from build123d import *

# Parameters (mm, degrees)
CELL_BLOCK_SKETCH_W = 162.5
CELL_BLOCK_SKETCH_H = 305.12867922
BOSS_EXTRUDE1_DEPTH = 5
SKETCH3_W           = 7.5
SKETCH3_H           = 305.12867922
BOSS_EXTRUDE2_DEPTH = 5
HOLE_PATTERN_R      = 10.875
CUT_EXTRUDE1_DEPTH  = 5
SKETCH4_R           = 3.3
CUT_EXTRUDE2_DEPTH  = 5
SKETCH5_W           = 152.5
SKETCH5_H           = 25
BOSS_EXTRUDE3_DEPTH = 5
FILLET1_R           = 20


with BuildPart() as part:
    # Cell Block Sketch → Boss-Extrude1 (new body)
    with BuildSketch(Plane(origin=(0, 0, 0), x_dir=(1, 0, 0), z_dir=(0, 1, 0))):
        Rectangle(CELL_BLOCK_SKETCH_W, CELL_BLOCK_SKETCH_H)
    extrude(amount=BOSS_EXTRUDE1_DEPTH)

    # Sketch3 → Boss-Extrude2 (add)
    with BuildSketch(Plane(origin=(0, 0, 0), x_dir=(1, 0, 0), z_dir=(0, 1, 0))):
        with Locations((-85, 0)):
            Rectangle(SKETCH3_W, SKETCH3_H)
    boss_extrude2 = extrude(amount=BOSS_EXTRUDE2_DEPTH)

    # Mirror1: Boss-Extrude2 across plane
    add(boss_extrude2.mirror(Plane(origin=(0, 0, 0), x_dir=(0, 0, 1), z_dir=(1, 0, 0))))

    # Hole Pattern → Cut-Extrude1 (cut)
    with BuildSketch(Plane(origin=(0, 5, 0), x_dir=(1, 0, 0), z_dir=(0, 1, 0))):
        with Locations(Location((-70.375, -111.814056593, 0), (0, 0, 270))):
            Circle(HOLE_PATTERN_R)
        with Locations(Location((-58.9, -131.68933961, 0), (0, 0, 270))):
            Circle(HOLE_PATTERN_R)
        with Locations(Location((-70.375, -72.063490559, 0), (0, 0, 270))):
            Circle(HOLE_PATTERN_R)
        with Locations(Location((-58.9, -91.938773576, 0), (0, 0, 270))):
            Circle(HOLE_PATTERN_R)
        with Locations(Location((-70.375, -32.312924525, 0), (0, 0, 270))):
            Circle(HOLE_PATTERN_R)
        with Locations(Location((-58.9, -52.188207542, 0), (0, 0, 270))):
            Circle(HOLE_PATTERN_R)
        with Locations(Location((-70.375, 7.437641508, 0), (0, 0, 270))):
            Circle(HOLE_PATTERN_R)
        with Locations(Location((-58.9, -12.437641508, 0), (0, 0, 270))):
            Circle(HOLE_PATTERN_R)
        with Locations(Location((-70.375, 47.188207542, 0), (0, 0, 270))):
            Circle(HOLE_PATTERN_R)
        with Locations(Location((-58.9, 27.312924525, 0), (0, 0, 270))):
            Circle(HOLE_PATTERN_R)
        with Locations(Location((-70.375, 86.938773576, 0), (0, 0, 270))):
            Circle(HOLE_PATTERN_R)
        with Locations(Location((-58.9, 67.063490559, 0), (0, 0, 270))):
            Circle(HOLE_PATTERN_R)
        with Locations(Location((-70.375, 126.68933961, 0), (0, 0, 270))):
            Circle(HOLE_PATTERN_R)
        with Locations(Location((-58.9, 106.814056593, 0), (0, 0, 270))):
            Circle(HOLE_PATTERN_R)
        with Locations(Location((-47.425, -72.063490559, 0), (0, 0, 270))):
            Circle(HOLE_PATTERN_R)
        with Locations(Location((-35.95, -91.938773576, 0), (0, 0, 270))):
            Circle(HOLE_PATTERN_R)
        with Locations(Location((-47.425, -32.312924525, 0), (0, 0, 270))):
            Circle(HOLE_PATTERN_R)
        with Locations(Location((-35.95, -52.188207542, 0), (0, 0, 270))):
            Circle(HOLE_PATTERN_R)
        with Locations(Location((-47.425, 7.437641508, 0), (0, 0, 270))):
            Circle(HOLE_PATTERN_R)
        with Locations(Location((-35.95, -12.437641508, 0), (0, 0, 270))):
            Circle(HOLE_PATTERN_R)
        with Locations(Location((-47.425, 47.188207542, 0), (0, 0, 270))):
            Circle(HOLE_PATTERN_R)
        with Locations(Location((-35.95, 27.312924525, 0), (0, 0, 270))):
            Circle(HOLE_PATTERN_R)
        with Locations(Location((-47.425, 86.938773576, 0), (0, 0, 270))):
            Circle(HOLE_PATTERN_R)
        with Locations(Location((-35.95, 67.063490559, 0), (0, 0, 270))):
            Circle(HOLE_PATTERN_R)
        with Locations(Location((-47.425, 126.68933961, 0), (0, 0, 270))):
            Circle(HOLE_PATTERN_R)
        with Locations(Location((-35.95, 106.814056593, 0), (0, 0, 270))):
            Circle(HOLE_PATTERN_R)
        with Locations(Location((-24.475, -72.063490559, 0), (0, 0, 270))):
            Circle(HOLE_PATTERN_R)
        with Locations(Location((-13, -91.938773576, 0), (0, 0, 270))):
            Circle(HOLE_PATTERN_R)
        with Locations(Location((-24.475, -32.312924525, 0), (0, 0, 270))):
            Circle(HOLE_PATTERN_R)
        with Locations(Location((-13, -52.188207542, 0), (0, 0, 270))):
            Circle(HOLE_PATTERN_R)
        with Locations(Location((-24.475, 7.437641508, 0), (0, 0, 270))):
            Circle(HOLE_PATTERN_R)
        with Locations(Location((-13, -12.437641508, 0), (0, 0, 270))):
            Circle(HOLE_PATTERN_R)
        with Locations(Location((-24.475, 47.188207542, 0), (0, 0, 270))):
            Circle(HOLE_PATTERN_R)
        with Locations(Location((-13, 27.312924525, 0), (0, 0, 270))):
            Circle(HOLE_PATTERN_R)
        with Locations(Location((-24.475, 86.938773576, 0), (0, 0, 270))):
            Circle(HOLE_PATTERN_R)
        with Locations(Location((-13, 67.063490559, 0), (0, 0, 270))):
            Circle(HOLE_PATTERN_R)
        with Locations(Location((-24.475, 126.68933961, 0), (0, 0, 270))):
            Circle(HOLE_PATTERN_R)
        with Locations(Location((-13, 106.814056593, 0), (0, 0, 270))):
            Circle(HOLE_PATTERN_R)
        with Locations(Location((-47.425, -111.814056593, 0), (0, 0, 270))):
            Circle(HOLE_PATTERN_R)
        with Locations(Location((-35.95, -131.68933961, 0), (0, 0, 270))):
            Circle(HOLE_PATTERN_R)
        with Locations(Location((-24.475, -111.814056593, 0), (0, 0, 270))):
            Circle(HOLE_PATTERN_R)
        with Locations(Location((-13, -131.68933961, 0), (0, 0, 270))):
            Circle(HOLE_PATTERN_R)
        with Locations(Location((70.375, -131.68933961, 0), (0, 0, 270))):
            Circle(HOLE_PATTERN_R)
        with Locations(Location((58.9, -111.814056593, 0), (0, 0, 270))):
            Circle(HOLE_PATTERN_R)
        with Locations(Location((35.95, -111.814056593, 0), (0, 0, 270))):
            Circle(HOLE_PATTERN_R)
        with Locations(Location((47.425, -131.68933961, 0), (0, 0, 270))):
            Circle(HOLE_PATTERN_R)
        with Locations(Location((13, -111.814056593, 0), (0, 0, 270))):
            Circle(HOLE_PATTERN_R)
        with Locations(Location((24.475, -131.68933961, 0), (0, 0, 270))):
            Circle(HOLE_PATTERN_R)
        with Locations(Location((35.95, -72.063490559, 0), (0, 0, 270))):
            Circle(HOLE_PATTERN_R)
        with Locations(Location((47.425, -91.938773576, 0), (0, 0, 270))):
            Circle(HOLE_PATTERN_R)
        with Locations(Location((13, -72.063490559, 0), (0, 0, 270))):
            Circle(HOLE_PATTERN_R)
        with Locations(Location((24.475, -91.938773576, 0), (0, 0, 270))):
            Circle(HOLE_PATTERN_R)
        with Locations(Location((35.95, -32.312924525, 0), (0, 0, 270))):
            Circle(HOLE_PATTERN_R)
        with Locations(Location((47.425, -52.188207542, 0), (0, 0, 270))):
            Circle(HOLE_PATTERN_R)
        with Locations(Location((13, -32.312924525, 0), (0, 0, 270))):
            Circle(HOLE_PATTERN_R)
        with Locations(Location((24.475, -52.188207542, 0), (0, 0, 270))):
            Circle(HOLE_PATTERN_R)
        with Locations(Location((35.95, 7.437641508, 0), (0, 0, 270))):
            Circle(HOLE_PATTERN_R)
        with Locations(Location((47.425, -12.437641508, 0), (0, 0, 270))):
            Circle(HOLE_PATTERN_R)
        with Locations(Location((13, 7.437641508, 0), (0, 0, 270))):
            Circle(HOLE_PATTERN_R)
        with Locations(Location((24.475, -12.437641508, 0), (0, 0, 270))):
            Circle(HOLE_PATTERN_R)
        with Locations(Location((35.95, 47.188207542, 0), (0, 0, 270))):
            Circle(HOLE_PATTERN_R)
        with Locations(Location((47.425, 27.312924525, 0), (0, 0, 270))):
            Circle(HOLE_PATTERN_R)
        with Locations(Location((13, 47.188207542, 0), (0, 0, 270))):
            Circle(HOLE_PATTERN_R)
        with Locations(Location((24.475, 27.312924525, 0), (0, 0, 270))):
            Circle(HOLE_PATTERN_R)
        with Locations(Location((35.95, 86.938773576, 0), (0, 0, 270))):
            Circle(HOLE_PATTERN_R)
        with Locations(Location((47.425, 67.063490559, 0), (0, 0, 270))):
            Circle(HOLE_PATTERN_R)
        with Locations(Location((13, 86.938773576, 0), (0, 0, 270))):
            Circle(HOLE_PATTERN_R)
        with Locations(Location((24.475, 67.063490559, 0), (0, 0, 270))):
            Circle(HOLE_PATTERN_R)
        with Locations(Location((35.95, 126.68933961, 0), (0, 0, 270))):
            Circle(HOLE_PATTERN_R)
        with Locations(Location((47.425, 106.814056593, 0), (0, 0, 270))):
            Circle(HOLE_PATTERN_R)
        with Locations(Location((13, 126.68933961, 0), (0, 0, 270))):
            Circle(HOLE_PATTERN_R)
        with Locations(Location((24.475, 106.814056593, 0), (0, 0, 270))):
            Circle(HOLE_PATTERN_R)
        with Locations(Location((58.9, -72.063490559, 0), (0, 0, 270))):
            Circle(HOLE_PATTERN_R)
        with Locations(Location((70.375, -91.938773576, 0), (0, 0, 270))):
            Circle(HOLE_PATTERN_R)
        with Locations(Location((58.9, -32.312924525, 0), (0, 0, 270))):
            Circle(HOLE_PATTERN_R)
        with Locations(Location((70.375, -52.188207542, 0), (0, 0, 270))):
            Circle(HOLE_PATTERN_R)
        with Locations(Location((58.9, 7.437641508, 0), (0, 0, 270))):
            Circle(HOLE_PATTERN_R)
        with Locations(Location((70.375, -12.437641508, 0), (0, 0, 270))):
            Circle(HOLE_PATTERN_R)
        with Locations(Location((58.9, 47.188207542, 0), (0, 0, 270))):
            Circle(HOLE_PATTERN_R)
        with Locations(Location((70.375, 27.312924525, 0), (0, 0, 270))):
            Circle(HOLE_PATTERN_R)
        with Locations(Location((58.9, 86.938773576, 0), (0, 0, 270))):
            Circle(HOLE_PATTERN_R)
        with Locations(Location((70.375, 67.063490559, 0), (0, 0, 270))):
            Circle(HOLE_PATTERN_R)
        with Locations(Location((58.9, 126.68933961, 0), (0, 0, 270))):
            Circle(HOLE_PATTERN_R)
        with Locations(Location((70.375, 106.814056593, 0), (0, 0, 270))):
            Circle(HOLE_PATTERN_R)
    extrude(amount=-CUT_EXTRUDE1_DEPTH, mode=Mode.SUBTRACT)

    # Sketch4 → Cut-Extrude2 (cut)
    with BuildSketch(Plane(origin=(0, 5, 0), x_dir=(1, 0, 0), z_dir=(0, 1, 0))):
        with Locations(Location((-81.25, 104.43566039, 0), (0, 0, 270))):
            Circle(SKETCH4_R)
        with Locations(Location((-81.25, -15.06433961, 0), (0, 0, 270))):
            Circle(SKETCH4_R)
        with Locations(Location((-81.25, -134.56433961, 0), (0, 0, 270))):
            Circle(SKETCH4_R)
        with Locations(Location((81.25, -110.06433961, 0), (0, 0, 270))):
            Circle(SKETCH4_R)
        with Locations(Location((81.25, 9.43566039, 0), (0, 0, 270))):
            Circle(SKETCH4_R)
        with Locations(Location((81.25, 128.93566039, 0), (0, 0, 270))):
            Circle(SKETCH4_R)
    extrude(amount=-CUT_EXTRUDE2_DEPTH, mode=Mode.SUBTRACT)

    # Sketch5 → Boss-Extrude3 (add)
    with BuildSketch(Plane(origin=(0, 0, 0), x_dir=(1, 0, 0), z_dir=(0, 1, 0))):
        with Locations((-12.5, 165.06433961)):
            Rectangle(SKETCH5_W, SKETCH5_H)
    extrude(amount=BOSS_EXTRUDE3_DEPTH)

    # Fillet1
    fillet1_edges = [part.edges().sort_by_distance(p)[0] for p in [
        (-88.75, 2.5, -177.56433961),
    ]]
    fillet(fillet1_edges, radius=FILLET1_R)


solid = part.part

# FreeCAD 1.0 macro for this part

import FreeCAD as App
import Part
import Sketcher
from FreeCAD import Vector


def edges_at(feature, points):
    """Names of the edges that pass closest to the given points."""
    edges = feature.Shape.Edges
    near = lambda p: min(range(len(edges)), key=lambda i: edges[i].distToShape(Part.Vertex(*p))[0])
    return sorted({f"Edge{near(p) + 1}" for p in points})


def add_polygon(sketch, points):
    """Adds a closed chain of lines whose ends are joined by coincident constraints."""
    first, n = sketch.GeometryCount, len(points)
    for a, b in zip(points, points[1:] + points[:1]):
        sketch.addGeometry(Part.LineSegment(App.Vector(*a, 0), App.Vector(*b, 0)), False)
    for i in range(n):
        sketch.addConstraint(Sketcher.Constraint("Coincident", first + i, 2, first + (i + 1) % n, 1))

doc = App.newDocument("Part")
body = doc.addObject("PartDesign::Body", "Body")

sketch1 = doc.addObject("Sketcher::SketchObject", "Sketch")
body.addObject(sketch1)
sketch1.AttachmentSupport = (doc.XZ_Plane, [""])
sketch1.MapMode = "FlatFace"
add_polygon(sketch1, [(-81, -153), (-81, 153), (81, 153), (81, -153)])
sketch1.addConstraint(Sketcher.Constraint("Vertical", 0))
sketch1.addConstraint(Sketcher.Constraint("Horizontal", 1))
sketch1.addConstraint(Sketcher.Constraint("Vertical", 2))
sketch1.addConstraint(Sketcher.Constraint("Horizontal", 3))
sketch1.addConstraint(Sketcher.Constraint("Symmetric", 0, 2, 2, 2, -1, 1))
sketch1.addConstraint(Sketcher.Constraint("DistanceX", 1, 1, 1, 2, 162.5))
sketch1.addConstraint(Sketcher.Constraint("DistanceY", 0, 1, 0, 2, 305.128679))
pad1 = doc.addObject("PartDesign::Pad", "Pad")
body.addObject(pad1)
pad1.Profile = sketch1
pad1.Length = 5
pad1.Reversed = True

sketch2 = doc.addObject("Sketcher::SketchObject", "Sketch001")
body.addObject(sketch2)
sketch2.AttachmentSupport = (doc.XZ_Plane, [""])
sketch2.MapMode = "FlatFace"
add_polygon(sketch2, [(-89, -153), (-89, 153), (-81, 153), (-81, -153)])
sketch2.addConstraint(Sketcher.Constraint("Vertical", 0))
sketch2.addConstraint(Sketcher.Constraint("Horizontal", 1))
sketch2.addConstraint(Sketcher.Constraint("Vertical", 2))
sketch2.addConstraint(Sketcher.Constraint("Horizontal", 3))
sketch2.addConstraint(Sketcher.Constraint("DistanceX", 1, 1, 1, 2, 7.5))
sketch2.addConstraint(Sketcher.Constraint("DistanceX", 0, 2, -1, 1, 88.75))
sketch2.addConstraint(Sketcher.Constraint("DistanceY", 0, 1, 0, 2, 305.128679))
sketch2.addConstraint(Sketcher.Constraint("DistanceY", -1, 1, 0, 2, 152.56434))
pad2 = doc.addObject("PartDesign::Pad", "Pad001")
body.addObject(pad2)
pad2.Profile = sketch2
pad2.Length = 5
pad2.Reversed = True
doc.recompute()

mirrored = doc.addObject("PartDesign::Mirrored", "Mirrored")
body.addObject(mirrored)
mirrored.Originals = [pad2]
mirrored.MirrorPlane = (doc.YZ_Plane, [""])
body.Tip = mirrored

sketch3 = doc.addObject("Sketcher::SketchObject", "Sketch002")
body.addObject(sketch3)
sketch3.AttachmentSupport = (doc.XZ_Plane, [""])
sketch3.MapMode = "FlatFace"
sketch3.AttachmentOffset = App.Placement(Vector(0, 0, -5), App.Rotation())
sketch3.addGeometry(Part.Circle(Vector(-70, 112, 0), Vector(0, 0, 1), 11), False)
sketch3.addGeometry(Part.Circle(Vector(-59, 132, 0), Vector(0, 0, 1), 11), False)
sketch3.addGeometry(Part.Circle(Vector(-70, 72, 0), Vector(0, 0, 1), 11), False)
sketch3.addGeometry(Part.Circle(Vector(-59, 92, 0), Vector(0, 0, 1), 11), False)
sketch3.addGeometry(Part.Circle(Vector(-70, 32, 0), Vector(0, 0, 1), 11), False)
sketch3.addGeometry(Part.Circle(Vector(-59, 52, 0), Vector(0, 0, 1), 11), False)
sketch3.addGeometry(Part.Circle(Vector(-70, -7, 0), Vector(0, 0, 1), 11), False)
sketch3.addGeometry(Part.Circle(Vector(-59, 12, 0), Vector(0, 0, 1), 11), False)
sketch3.addGeometry(Part.Circle(Vector(-70, -47, 0), Vector(0, 0, 1), 11), False)
sketch3.addGeometry(Part.Circle(Vector(-59, -27, 0), Vector(0, 0, 1), 11), False)
sketch3.addGeometry(Part.Circle(Vector(-70, -87, 0), Vector(0, 0, 1), 11), False)
sketch3.addGeometry(Part.Circle(Vector(-59, -67, 0), Vector(0, 0, 1), 11), False)
sketch3.addGeometry(Part.Circle(Vector(-70, -127, 0), Vector(0, 0, 1), 11), False)
sketch3.addGeometry(Part.Circle(Vector(-59, -107, 0), Vector(0, 0, 1), 11), False)
sketch3.addGeometry(Part.Circle(Vector(-47, 72, 0), Vector(0, 0, 1), 11), False)
sketch3.addGeometry(Part.Circle(Vector(-36, 92, 0), Vector(0, 0, 1), 11), False)
sketch3.addGeometry(Part.Circle(Vector(-47, 32, 0), Vector(0, 0, 1), 11), False)
sketch3.addGeometry(Part.Circle(Vector(-36, 52, 0), Vector(0, 0, 1), 11), False)
sketch3.addGeometry(Part.Circle(Vector(-47, -7, 0), Vector(0, 0, 1), 11), False)
sketch3.addGeometry(Part.Circle(Vector(-36, 12, 0), Vector(0, 0, 1), 11), False)
sketch3.addGeometry(Part.Circle(Vector(-47, -47, 0), Vector(0, 0, 1), 11), False)
sketch3.addGeometry(Part.Circle(Vector(-36, -27, 0), Vector(0, 0, 1), 11), False)
sketch3.addGeometry(Part.Circle(Vector(-47, -87, 0), Vector(0, 0, 1), 11), False)
sketch3.addGeometry(Part.Circle(Vector(-36, -67, 0), Vector(0, 0, 1), 11), False)
sketch3.addGeometry(Part.Circle(Vector(-47, -127, 0), Vector(0, 0, 1), 11), False)
sketch3.addGeometry(Part.Circle(Vector(-36, -107, 0), Vector(0, 0, 1), 11), False)
sketch3.addGeometry(Part.Circle(Vector(-24, 72, 0), Vector(0, 0, 1), 11), False)
sketch3.addGeometry(Part.Circle(Vector(-13, 92, 0), Vector(0, 0, 1), 11), False)
sketch3.addGeometry(Part.Circle(Vector(-24, 32, 0), Vector(0, 0, 1), 11), False)
sketch3.addGeometry(Part.Circle(Vector(-13, 52, 0), Vector(0, 0, 1), 11), False)
sketch3.addGeometry(Part.Circle(Vector(-24, -7, 0), Vector(0, 0, 1), 11), False)
sketch3.addGeometry(Part.Circle(Vector(-13, 12, 0), Vector(0, 0, 1), 11), False)
sketch3.addGeometry(Part.Circle(Vector(-24, -47, 0), Vector(0, 0, 1), 11), False)
sketch3.addGeometry(Part.Circle(Vector(-13, -27, 0), Vector(0, 0, 1), 11), False)
sketch3.addGeometry(Part.Circle(Vector(-24, -87, 0), Vector(0, 0, 1), 11), False)
sketch3.addGeometry(Part.Circle(Vector(-13, -67, 0), Vector(0, 0, 1), 11), False)
sketch3.addGeometry(Part.Circle(Vector(-24, -127, 0), Vector(0, 0, 1), 11), False)
sketch3.addGeometry(Part.Circle(Vector(-13, -107, 0), Vector(0, 0, 1), 11), False)
sketch3.addGeometry(Part.Circle(Vector(-47, 112, 0), Vector(0, 0, 1), 11), False)
sketch3.addGeometry(Part.Circle(Vector(-36, 132, 0), Vector(0, 0, 1), 11), False)
sketch3.addGeometry(Part.Circle(Vector(-24, 112, 0), Vector(0, 0, 1), 11), False)
sketch3.addGeometry(Part.Circle(Vector(-13, 132, 0), Vector(0, 0, 1), 11), False)
sketch3.addGeometry(Part.Circle(Vector(70, 132, 0), Vector(0, 0, 1), 11), False)
sketch3.addGeometry(Part.Circle(Vector(59, 112, 0), Vector(0, 0, 1), 11), False)
sketch3.addGeometry(Part.Circle(Vector(36, 112, 0), Vector(0, 0, 1), 11), False)
sketch3.addGeometry(Part.Circle(Vector(47, 132, 0), Vector(0, 0, 1), 11), False)
sketch3.addGeometry(Part.Circle(Vector(13, 112, 0), Vector(0, 0, 1), 11), False)
sketch3.addGeometry(Part.Circle(Vector(24, 132, 0), Vector(0, 0, 1), 11), False)
sketch3.addGeometry(Part.Circle(Vector(36, 72, 0), Vector(0, 0, 1), 11), False)
sketch3.addGeometry(Part.Circle(Vector(47, 92, 0), Vector(0, 0, 1), 11), False)
sketch3.addGeometry(Part.Circle(Vector(13, 72, 0), Vector(0, 0, 1), 11), False)
sketch3.addGeometry(Part.Circle(Vector(24, 92, 0), Vector(0, 0, 1), 11), False)
sketch3.addGeometry(Part.Circle(Vector(36, 32, 0), Vector(0, 0, 1), 11), False)
sketch3.addGeometry(Part.Circle(Vector(47, 52, 0), Vector(0, 0, 1), 11), False)
sketch3.addGeometry(Part.Circle(Vector(13, 32, 0), Vector(0, 0, 1), 11), False)
sketch3.addGeometry(Part.Circle(Vector(24, 52, 0), Vector(0, 0, 1), 11), False)
sketch3.addGeometry(Part.Circle(Vector(36, -7, 0), Vector(0, 0, 1), 11), False)
sketch3.addGeometry(Part.Circle(Vector(47, 12, 0), Vector(0, 0, 1), 11), False)
sketch3.addGeometry(Part.Circle(Vector(13, -7, 0), Vector(0, 0, 1), 11), False)
sketch3.addGeometry(Part.Circle(Vector(24, 12, 0), Vector(0, 0, 1), 11), False)
sketch3.addGeometry(Part.Circle(Vector(36, -47, 0), Vector(0, 0, 1), 11), False)
sketch3.addGeometry(Part.Circle(Vector(47, -27, 0), Vector(0, 0, 1), 11), False)
sketch3.addGeometry(Part.Circle(Vector(13, -47, 0), Vector(0, 0, 1), 11), False)
sketch3.addGeometry(Part.Circle(Vector(24, -27, 0), Vector(0, 0, 1), 11), False)
sketch3.addGeometry(Part.Circle(Vector(36, -87, 0), Vector(0, 0, 1), 11), False)
sketch3.addGeometry(Part.Circle(Vector(47, -67, 0), Vector(0, 0, 1), 11), False)
sketch3.addGeometry(Part.Circle(Vector(13, -87, 0), Vector(0, 0, 1), 11), False)
sketch3.addGeometry(Part.Circle(Vector(24, -67, 0), Vector(0, 0, 1), 11), False)
sketch3.addGeometry(Part.Circle(Vector(36, -127, 0), Vector(0, 0, 1), 11), False)
sketch3.addGeometry(Part.Circle(Vector(47, -107, 0), Vector(0, 0, 1), 11), False)
sketch3.addGeometry(Part.Circle(Vector(13, -127, 0), Vector(0, 0, 1), 11), False)
sketch3.addGeometry(Part.Circle(Vector(24, -107, 0), Vector(0, 0, 1), 11), False)
sketch3.addGeometry(Part.Circle(Vector(59, 72, 0), Vector(0, 0, 1), 11), False)
sketch3.addGeometry(Part.Circle(Vector(70, 92, 0), Vector(0, 0, 1), 11), False)
sketch3.addGeometry(Part.Circle(Vector(59, 32, 0), Vector(0, 0, 1), 11), False)
sketch3.addGeometry(Part.Circle(Vector(70, 52, 0), Vector(0, 0, 1), 11), False)
sketch3.addGeometry(Part.Circle(Vector(59, -7, 0), Vector(0, 0, 1), 11), False)
sketch3.addGeometry(Part.Circle(Vector(70, 12, 0), Vector(0, 0, 1), 11), False)
sketch3.addGeometry(Part.Circle(Vector(59, -47, 0), Vector(0, 0, 1), 11), False)
sketch3.addGeometry(Part.Circle(Vector(70, -27, 0), Vector(0, 0, 1), 11), False)
sketch3.addGeometry(Part.Circle(Vector(59, -87, 0), Vector(0, 0, 1), 11), False)
sketch3.addGeometry(Part.Circle(Vector(70, -67, 0), Vector(0, 0, 1), 11), False)
sketch3.addGeometry(Part.Circle(Vector(59, -127, 0), Vector(0, 0, 1), 11), False)
sketch3.addGeometry(Part.Circle(Vector(70, -107, 0), Vector(0, 0, 1), 11), False)
sketch3.addConstraint(Sketcher.Constraint("Equal", 0, 1))
sketch3.addConstraint(Sketcher.Constraint("Equal", 1, 2))
sketch3.addConstraint(Sketcher.Constraint("Equal", 2, 3))
sketch3.addConstraint(Sketcher.Constraint("Equal", 3, 4))
sketch3.addConstraint(Sketcher.Constraint("Equal", 4, 5))
sketch3.addConstraint(Sketcher.Constraint("Equal", 5, 6))
sketch3.addConstraint(Sketcher.Constraint("Equal", 6, 7))
sketch3.addConstraint(Sketcher.Constraint("Equal", 7, 8))
sketch3.addConstraint(Sketcher.Constraint("Equal", 8, 9))
sketch3.addConstraint(Sketcher.Constraint("Equal", 9, 10))
sketch3.addConstraint(Sketcher.Constraint("Equal", 10, 11))
sketch3.addConstraint(Sketcher.Constraint("Equal", 11, 12))
sketch3.addConstraint(Sketcher.Constraint("Equal", 12, 13))
sketch3.addConstraint(Sketcher.Constraint("Equal", 13, 14))
sketch3.addConstraint(Sketcher.Constraint("Equal", 14, 15))
sketch3.addConstraint(Sketcher.Constraint("Equal", 15, 16))
sketch3.addConstraint(Sketcher.Constraint("Equal", 16, 17))
sketch3.addConstraint(Sketcher.Constraint("Equal", 17, 18))
sketch3.addConstraint(Sketcher.Constraint("Equal", 18, 19))
sketch3.addConstraint(Sketcher.Constraint("Equal", 19, 20))
sketch3.addConstraint(Sketcher.Constraint("Equal", 20, 21))
sketch3.addConstraint(Sketcher.Constraint("Equal", 21, 22))
sketch3.addConstraint(Sketcher.Constraint("Equal", 22, 23))
sketch3.addConstraint(Sketcher.Constraint("Equal", 23, 24))
sketch3.addConstraint(Sketcher.Constraint("Equal", 24, 25))
sketch3.addConstraint(Sketcher.Constraint("Equal", 25, 26))
sketch3.addConstraint(Sketcher.Constraint("Equal", 26, 27))
sketch3.addConstraint(Sketcher.Constraint("Equal", 27, 28))
sketch3.addConstraint(Sketcher.Constraint("Equal", 28, 29))
sketch3.addConstraint(Sketcher.Constraint("Equal", 29, 30))
sketch3.addConstraint(Sketcher.Constraint("Equal", 30, 31))
sketch3.addConstraint(Sketcher.Constraint("Equal", 31, 32))
sketch3.addConstraint(Sketcher.Constraint("Equal", 32, 33))
sketch3.addConstraint(Sketcher.Constraint("Equal", 33, 34))
sketch3.addConstraint(Sketcher.Constraint("Equal", 34, 35))
sketch3.addConstraint(Sketcher.Constraint("Equal", 35, 36))
sketch3.addConstraint(Sketcher.Constraint("Equal", 36, 37))
sketch3.addConstraint(Sketcher.Constraint("Equal", 37, 38))
sketch3.addConstraint(Sketcher.Constraint("Equal", 38, 39))
sketch3.addConstraint(Sketcher.Constraint("Equal", 39, 40))
sketch3.addConstraint(Sketcher.Constraint("Equal", 40, 41))
sketch3.addConstraint(Sketcher.Constraint("Equal", 41, 42))
sketch3.addConstraint(Sketcher.Constraint("Equal", 42, 43))
sketch3.addConstraint(Sketcher.Constraint("Equal", 43, 44))
sketch3.addConstraint(Sketcher.Constraint("Equal", 44, 45))
sketch3.addConstraint(Sketcher.Constraint("Equal", 45, 46))
sketch3.addConstraint(Sketcher.Constraint("Equal", 46, 47))
sketch3.addConstraint(Sketcher.Constraint("Equal", 47, 48))
sketch3.addConstraint(Sketcher.Constraint("Equal", 48, 49))
sketch3.addConstraint(Sketcher.Constraint("Equal", 49, 50))
sketch3.addConstraint(Sketcher.Constraint("Equal", 50, 51))
sketch3.addConstraint(Sketcher.Constraint("Equal", 51, 52))
sketch3.addConstraint(Sketcher.Constraint("Equal", 52, 53))
sketch3.addConstraint(Sketcher.Constraint("Equal", 53, 54))
sketch3.addConstraint(Sketcher.Constraint("Equal", 54, 55))
sketch3.addConstraint(Sketcher.Constraint("Equal", 55, 56))
sketch3.addConstraint(Sketcher.Constraint("Equal", 56, 57))
sketch3.addConstraint(Sketcher.Constraint("Equal", 57, 58))
sketch3.addConstraint(Sketcher.Constraint("Equal", 58, 59))
sketch3.addConstraint(Sketcher.Constraint("Equal", 59, 60))
sketch3.addConstraint(Sketcher.Constraint("Equal", 60, 61))
sketch3.addConstraint(Sketcher.Constraint("Equal", 61, 62))
sketch3.addConstraint(Sketcher.Constraint("Equal", 62, 63))
sketch3.addConstraint(Sketcher.Constraint("Equal", 63, 64))
sketch3.addConstraint(Sketcher.Constraint("Equal", 64, 65))
sketch3.addConstraint(Sketcher.Constraint("Equal", 65, 66))
sketch3.addConstraint(Sketcher.Constraint("Equal", 66, 67))
sketch3.addConstraint(Sketcher.Constraint("Equal", 67, 68))
sketch3.addConstraint(Sketcher.Constraint("Equal", 68, 69))
sketch3.addConstraint(Sketcher.Constraint("Equal", 69, 70))
sketch3.addConstraint(Sketcher.Constraint("Equal", 70, 71))
sketch3.addConstraint(Sketcher.Constraint("Equal", 71, 72))
sketch3.addConstraint(Sketcher.Constraint("Equal", 72, 73))
sketch3.addConstraint(Sketcher.Constraint("Equal", 73, 74))
sketch3.addConstraint(Sketcher.Constraint("Equal", 74, 75))
sketch3.addConstraint(Sketcher.Constraint("Equal", 75, 76))
sketch3.addConstraint(Sketcher.Constraint("Equal", 76, 77))
sketch3.addConstraint(Sketcher.Constraint("Equal", 77, 78))
sketch3.addConstraint(Sketcher.Constraint("Equal", 78, 79))
sketch3.addConstraint(Sketcher.Constraint("Equal", 79, 80))
sketch3.addConstraint(Sketcher.Constraint("Equal", 80, 81))
sketch3.addConstraint(Sketcher.Constraint("Equal", 81, 82))
sketch3.addConstraint(Sketcher.Constraint("Equal", 82, 83))
sketch3.addConstraint(Sketcher.Constraint("Horizontal", 2, 3, 14, 3))
sketch3.addConstraint(Sketcher.Constraint("Horizontal", 3, 3, 15, 3))
sketch3.addConstraint(Sketcher.Constraint("Horizontal", 4, 3, 16, 3))
sketch3.addConstraint(Sketcher.Constraint("Horizontal", 5, 3, 17, 3))
sketch3.addConstraint(Sketcher.Constraint("Horizontal", 6, 3, 18, 3))
sketch3.addConstraint(Sketcher.Constraint("Horizontal", 7, 3, 19, 3))
sketch3.addConstraint(Sketcher.Constraint("Horizontal", 8, 3, 20, 3))
sketch3.addConstraint(Sketcher.Constraint("Horizontal", 9, 3, 21, 3))
sketch3.addConstraint(Sketcher.Constraint("Horizontal", 10, 3, 22, 3))
sketch3.addConstraint(Sketcher.Constraint("Horizontal", 11, 3, 23, 3))
sketch3.addConstraint(Sketcher.Constraint("Horizontal", 12, 3, 24, 3))
sketch3.addConstraint(Sketcher.Constraint("Horizontal", 13, 3, 25, 3))
sketch3.addConstraint(Sketcher.Constraint("Horizontal", 14, 3, 26, 3))
sketch3.addConstraint(Sketcher.Constraint("Horizontal", 15, 3, 27, 3))
sketch3.addConstraint(Sketcher.Constraint("Horizontal", 16, 3, 28, 3))
sketch3.addConstraint(Sketcher.Constraint("Horizontal", 17, 3, 29, 3))
sketch3.addConstraint(Sketcher.Constraint("Horizontal", 18, 3, 30, 3))
sketch3.addConstraint(Sketcher.Constraint("Horizontal", 19, 3, 31, 3))
sketch3.addConstraint(Sketcher.Constraint("Horizontal", 20, 3, 32, 3))
sketch3.addConstraint(Sketcher.Constraint("Horizontal", 21, 3, 33, 3))
sketch3.addConstraint(Sketcher.Constraint("Horizontal", 22, 3, 34, 3))
sketch3.addConstraint(Sketcher.Constraint("Horizontal", 23, 3, 35, 3))
sketch3.addConstraint(Sketcher.Constraint("Horizontal", 24, 3, 36, 3))
sketch3.addConstraint(Sketcher.Constraint("Horizontal", 25, 3, 37, 3))
sketch3.addConstraint(Sketcher.Constraint("Horizontal", 0, 3, 38, 3))
sketch3.addConstraint(Sketcher.Constraint("Horizontal", 1, 3, 39, 3))
sketch3.addConstraint(Sketcher.Constraint("Horizontal", 38, 3, 40, 3))
sketch3.addConstraint(Sketcher.Constraint("Horizontal", 39, 3, 41, 3))
sketch3.addConstraint(Sketcher.Constraint("Horizontal", 41, 3, 42, 3))
sketch3.addConstraint(Sketcher.Constraint("Horizontal", 40, 3, 43, 3))
sketch3.addConstraint(Sketcher.Constraint("Horizontal", 43, 3, 44, 3))
sketch3.addConstraint(Sketcher.Constraint("Horizontal", 42, 3, 45, 3))
sketch3.addConstraint(Sketcher.Constraint("Horizontal", 44, 3, 46, 3))
sketch3.addConstraint(Sketcher.Constraint("Horizontal", 45, 3, 47, 3))
sketch3.addConstraint(Sketcher.Constraint("Horizontal", 26, 3, 48, 3))
sketch3.addConstraint(Sketcher.Constraint("Horizontal", 27, 3, 49, 3))
sketch3.addConstraint(Sketcher.Constraint("Horizontal", 48, 3, 50, 3))
sketch3.addConstraint(Sketcher.Constraint("Horizontal", 49, 3, 51, 3))
sketch3.addConstraint(Sketcher.Constraint("Horizontal", 28, 3, 52, 3))
sketch3.addConstraint(Sketcher.Constraint("Horizontal", 29, 3, 53, 3))
sketch3.addConstraint(Sketcher.Constraint("Horizontal", 52, 3, 54, 3))
sketch3.addConstraint(Sketcher.Constraint("Horizontal", 53, 3, 55, 3))
sketch3.addConstraint(Sketcher.Constraint("Horizontal", 30, 3, 56, 3))
sketch3.addConstraint(Sketcher.Constraint("Horizontal", 31, 3, 57, 3))
sketch3.addConstraint(Sketcher.Constraint("Horizontal", 56, 3, 58, 3))
sketch3.addConstraint(Sketcher.Constraint("Horizontal", 57, 3, 59, 3))
sketch3.addConstraint(Sketcher.Constraint("Horizontal", 32, 3, 60, 3))
sketch3.addConstraint(Sketcher.Constraint("Horizontal", 33, 3, 61, 3))
sketch3.addConstraint(Sketcher.Constraint("Horizontal", 60, 3, 62, 3))
sketch3.addConstraint(Sketcher.Constraint("Horizontal", 61, 3, 63, 3))
sketch3.addConstraint(Sketcher.Constraint("Horizontal", 34, 3, 64, 3))
sketch3.addConstraint(Sketcher.Constraint("Horizontal", 35, 3, 65, 3))
sketch3.addConstraint(Sketcher.Constraint("Horizontal", 64, 3, 66, 3))
sketch3.addConstraint(Sketcher.Constraint("Horizontal", 65, 3, 67, 3))
sketch3.addConstraint(Sketcher.Constraint("Horizontal", 36, 3, 68, 3))
sketch3.addConstraint(Sketcher.Constraint("Horizontal", 37, 3, 69, 3))
sketch3.addConstraint(Sketcher.Constraint("Horizontal", 68, 3, 70, 3))
sketch3.addConstraint(Sketcher.Constraint("Horizontal", 69, 3, 71, 3))
sketch3.addConstraint(Sketcher.Constraint("Horizontal", 50, 3, 72, 3))
sketch3.addConstraint(Sketcher.Constraint("Horizontal", 51, 3, 73, 3))
sketch3.addConstraint(Sketcher.Constraint("Horizontal", 54, 3, 74, 3))
sketch3.addConstraint(Sketcher.Constraint("Horizontal", 55, 3, 75, 3))
sketch3.addConstraint(Sketcher.Constraint("Horizontal", 58, 3, 76, 3))
sketch3.addConstraint(Sketcher.Constraint("Horizontal", 59, 3, 77, 3))
sketch3.addConstraint(Sketcher.Constraint("Horizontal", 62, 3, 78, 3))
sketch3.addConstraint(Sketcher.Constraint("Horizontal", 63, 3, 79, 3))
sketch3.addConstraint(Sketcher.Constraint("Horizontal", 66, 3, 80, 3))
sketch3.addConstraint(Sketcher.Constraint("Horizontal", 67, 3, 81, 3))
sketch3.addConstraint(Sketcher.Constraint("Horizontal", 70, 3, 82, 3))
sketch3.addConstraint(Sketcher.Constraint("Horizontal", 71, 3, 83, 3))
sketch3.addConstraint(Sketcher.Constraint("Vertical", 0, 3, 2, 3))
sketch3.addConstraint(Sketcher.Constraint("Vertical", 1, 3, 3, 3))
sketch3.addConstraint(Sketcher.Constraint("Vertical", 2, 3, 4, 3))
sketch3.addConstraint(Sketcher.Constraint("Vertical", 3, 3, 5, 3))
sketch3.addConstraint(Sketcher.Constraint("Vertical", 4, 3, 6, 3))
sketch3.addConstraint(Sketcher.Constraint("Vertical", 5, 3, 7, 3))
sketch3.addConstraint(Sketcher.Constraint("Vertical", 6, 3, 8, 3))
sketch3.addConstraint(Sketcher.Constraint("Vertical", 7, 3, 9, 3))
sketch3.addConstraint(Sketcher.Constraint("Vertical", 8, 3, 10, 3))
sketch3.addConstraint(Sketcher.Constraint("Vertical", 9, 3, 11, 3))
sketch3.addConstraint(Sketcher.Constraint("Vertical", 10, 3, 12, 3))
sketch3.addConstraint(Sketcher.Constraint("Vertical", 11, 3, 13, 3))
sketch3.addConstraint(Sketcher.Constraint("Vertical", 14, 3, 16, 3))
sketch3.addConstraint(Sketcher.Constraint("Vertical", 15, 3, 17, 3))
sketch3.addConstraint(Sketcher.Constraint("Vertical", 16, 3, 18, 3))
sketch3.addConstraint(Sketcher.Constraint("Vertical", 17, 3, 19, 3))
sketch3.addConstraint(Sketcher.Constraint("Vertical", 18, 3, 20, 3))
sketch3.addConstraint(Sketcher.Constraint("Vertical", 19, 3, 21, 3))
sketch3.addConstraint(Sketcher.Constraint("Vertical", 20, 3, 22, 3))
sketch3.addConstraint(Sketcher.Constraint("Vertical", 21, 3, 23, 3))
sketch3.addConstraint(Sketcher.Constraint("Vertical", 22, 3, 24, 3))
sketch3.addConstraint(Sketcher.Constraint("Vertical", 23, 3, 25, 3))
sketch3.addConstraint(Sketcher.Constraint("Vertical", 26, 3, 28, 3))
sketch3.addConstraint(Sketcher.Constraint("Vertical", 27, 3, 29, 3))
sketch3.addConstraint(Sketcher.Constraint("Vertical", 28, 3, 30, 3))
sketch3.addConstraint(Sketcher.Constraint("Vertical", 29, 3, 31, 3))
sketch3.addConstraint(Sketcher.Constraint("Vertical", 30, 3, 32, 3))
sketch3.addConstraint(Sketcher.Constraint("Vertical", 31, 3, 33, 3))
sketch3.addConstraint(Sketcher.Constraint("Vertical", 32, 3, 34, 3))
sketch3.addConstraint(Sketcher.Constraint("Vertical", 33, 3, 35, 3))
sketch3.addConstraint(Sketcher.Constraint("Vertical", 34, 3, 36, 3))
sketch3.addConstraint(Sketcher.Constraint("Vertical", 35, 3, 37, 3))
sketch3.addConstraint(Sketcher.Constraint("Vertical", 24, 3, 38, 3))
sketch3.addConstraint(Sketcher.Constraint("Vertical", 25, 3, 39, 3))
sketch3.addConstraint(Sketcher.Constraint("Vertical", 36, 3, 40, 3))
sketch3.addConstraint(Sketcher.Constraint("Vertical", 37, 3, 41, 3))
sketch3.addConstraint(Sketcher.Constraint("Vertical", 44, 3, 48, 3))
sketch3.addConstraint(Sketcher.Constraint("Vertical", 45, 3, 49, 3))
sketch3.addConstraint(Sketcher.Constraint("Vertical", 46, 3, 50, 3))
sketch3.addConstraint(Sketcher.Constraint("Vertical", 47, 3, 51, 3))
sketch3.addConstraint(Sketcher.Constraint("Vertical", 48, 3, 52, 3))
sketch3.addConstraint(Sketcher.Constraint("Vertical", 49, 3, 53, 3))
sketch3.addConstraint(Sketcher.Constraint("Vertical", 50, 3, 54, 3))
sketch3.addConstraint(Sketcher.Constraint("Vertical", 51, 3, 55, 3))
sketch3.addConstraint(Sketcher.Constraint("Vertical", 52, 3, 56, 3))
sketch3.addConstraint(Sketcher.Constraint("Vertical", 53, 3, 57, 3))
sketch3.addConstraint(Sketcher.Constraint("Vertical", 54, 3, 58, 3))
sketch3.addConstraint(Sketcher.Constraint("Vertical", 55, 3, 59, 3))
sketch3.addConstraint(Sketcher.Constraint("Vertical", 56, 3, 60, 3))
sketch3.addConstraint(Sketcher.Constraint("Vertical", 57, 3, 61, 3))
sketch3.addConstraint(Sketcher.Constraint("Vertical", 58, 3, 62, 3))
sketch3.addConstraint(Sketcher.Constraint("Vertical", 59, 3, 63, 3))
sketch3.addConstraint(Sketcher.Constraint("Vertical", 60, 3, 64, 3))
sketch3.addConstraint(Sketcher.Constraint("Vertical", 61, 3, 65, 3))
sketch3.addConstraint(Sketcher.Constraint("Vertical", 62, 3, 66, 3))
sketch3.addConstraint(Sketcher.Constraint("Vertical", 63, 3, 67, 3))
sketch3.addConstraint(Sketcher.Constraint("Vertical", 64, 3, 68, 3))
sketch3.addConstraint(Sketcher.Constraint("Vertical", 65, 3, 69, 3))
sketch3.addConstraint(Sketcher.Constraint("Vertical", 66, 3, 70, 3))
sketch3.addConstraint(Sketcher.Constraint("Vertical", 67, 3, 71, 3))
sketch3.addConstraint(Sketcher.Constraint("Vertical", 43, 3, 72, 3))
sketch3.addConstraint(Sketcher.Constraint("Vertical", 42, 3, 73, 3))
sketch3.addConstraint(Sketcher.Constraint("Vertical", 72, 3, 74, 3))
sketch3.addConstraint(Sketcher.Constraint("Vertical", 73, 3, 75, 3))
sketch3.addConstraint(Sketcher.Constraint("Vertical", 74, 3, 76, 3))
sketch3.addConstraint(Sketcher.Constraint("Vertical", 75, 3, 77, 3))
sketch3.addConstraint(Sketcher.Constraint("Vertical", 76, 3, 78, 3))
sketch3.addConstraint(Sketcher.Constraint("Vertical", 77, 3, 79, 3))
sketch3.addConstraint(Sketcher.Constraint("Vertical", 78, 3, 80, 3))
sketch3.addConstraint(Sketcher.Constraint("Vertical", 79, 3, 81, 3))
sketch3.addConstraint(Sketcher.Constraint("Vertical", 80, 3, 82, 3))
sketch3.addConstraint(Sketcher.Constraint("Vertical", 81, 3, 83, 3))
sketch3.addConstraint(Sketcher.Constraint("Diameter", 0, 21.75))
sketch3.addConstraint(Sketcher.Constraint("DistanceX", 27, 3, -1, 1, 13.0))
sketch3.addConstraint(Sketcher.Constraint("DistanceX", -1, 1, 46, 3, 13.0))
sketch3.addConstraint(Sketcher.Constraint("DistanceX", 1, 3, -1, 1, 58.9))
sketch3.addConstraint(Sketcher.Constraint("DistanceX", -1, 1, 43, 3, 58.9))
sketch3.addConstraint(Sketcher.Constraint("DistanceX", 15, 3, -1, 1, 35.95))
sketch3.addConstraint(Sketcher.Constraint("DistanceX", -1, 1, 44, 3, 35.95))
sketch3.addConstraint(Sketcher.Constraint("DistanceX", 0, 3, -1, 1, 70.375))
sketch3.addConstraint(Sketcher.Constraint("DistanceX", 14, 3, -1, 1, 47.425))
sketch3.addConstraint(Sketcher.Constraint("DistanceX", 26, 3, -1, 1, 24.475))
sketch3.addConstraint(Sketcher.Constraint("DistanceX", -1, 1, 42, 3, 70.375))
sketch3.addConstraint(Sketcher.Constraint("DistanceX", -1, 1, 45, 3, 47.425))
sketch3.addConstraint(Sketcher.Constraint("DistanceX", -1, 1, 47, 3, 24.475))
sketch3.addConstraint(Sketcher.Constraint("DistanceY", -1, 1, 1, 3, 131.68934))
sketch3.addConstraint(Sketcher.Constraint("DistanceY", -1, 1, 2, 3, 72.063491))
sketch3.addConstraint(Sketcher.Constraint("DistanceY", 6, 3, -1, 1, 7.437642))
sketch3.addConstraint(Sketcher.Constraint("DistanceY", -1, 1, 7, 3, 12.437642))
sketch3.addConstraint(Sketcher.Constraint("DistanceY", 11, 3, -1, 1, 67.063491))
sketch3.addConstraint(Sketcher.Constraint("DistanceY", 12, 3, -1, 1, 126.68934))
sketch3.addConstraint(Sketcher.Constraint("DistanceY", -1, 1, 0, 3, 111.814057))
sketch3.addConstraint(Sketcher.Constraint("DistanceY", -1, 1, 3, 3, 91.938774))
sketch3.addConstraint(Sketcher.Constraint("DistanceY", -1, 1, 4, 3, 32.312925))
sketch3.addConstraint(Sketcher.Constraint("DistanceY", -1, 1, 5, 3, 52.188208))
sketch3.addConstraint(Sketcher.Constraint("DistanceY", 8, 3, -1, 1, 47.188208))
sketch3.addConstraint(Sketcher.Constraint("DistanceY", 9, 3, -1, 1, 27.312925))
sketch3.addConstraint(Sketcher.Constraint("DistanceY", 10, 3, -1, 1, 86.938774))
sketch3.addConstraint(Sketcher.Constraint("DistanceY", 13, 3, -1, 1, 106.814057))
pocket1 = doc.addObject("PartDesign::Pocket", "Pocket")
body.addObject(pocket1)
pocket1.Profile = sketch3
pocket1.Length = 5
pocket1.Reversed = True

sketch4 = doc.addObject("Sketcher::SketchObject", "Sketch003")
body.addObject(sketch4)
sketch4.AttachmentSupport = (doc.XZ_Plane, [""])
sketch4.MapMode = "FlatFace"
sketch4.AttachmentOffset = App.Placement(Vector(0, 0, -5), App.Rotation())
sketch4.addGeometry(Part.Circle(Vector(-81.2, -104.4, 0), Vector(0, 0, 1), 3.3), False)
sketch4.addGeometry(Part.Circle(Vector(-81.2, 15.1, 0), Vector(0, 0, 1), 3.3), False)
sketch4.addGeometry(Part.Circle(Vector(-81.2, 134.6, 0), Vector(0, 0, 1), 3.3), False)
sketch4.addGeometry(Part.Circle(Vector(81.2, 110.1, 0), Vector(0, 0, 1), 3.3), False)
sketch4.addGeometry(Part.Circle(Vector(81.2, -9.4, 0), Vector(0, 0, 1), 3.3), False)
sketch4.addGeometry(Part.Circle(Vector(81.2, -128.9, 0), Vector(0, 0, 1), 3.3), False)
sketch4.addConstraint(Sketcher.Constraint("Equal", 0, 1))
sketch4.addConstraint(Sketcher.Constraint("Equal", 1, 2))
sketch4.addConstraint(Sketcher.Constraint("Equal", 2, 3))
sketch4.addConstraint(Sketcher.Constraint("Equal", 3, 4))
sketch4.addConstraint(Sketcher.Constraint("Equal", 4, 5))
sketch4.addConstraint(Sketcher.Constraint("Vertical", 0, 3, 1, 3))
sketch4.addConstraint(Sketcher.Constraint("Vertical", 1, 3, 2, 3))
sketch4.addConstraint(Sketcher.Constraint("Vertical", 3, 3, 4, 3))
sketch4.addConstraint(Sketcher.Constraint("Vertical", 4, 3, 5, 3))
sketch4.addConstraint(Sketcher.Constraint("Diameter", 0, 6.6))
sketch4.addConstraint(Sketcher.Constraint("DistanceY", 0, 3, 2, 3, 239.0))
sketch4.addConstraint(Sketcher.Constraint("DistanceY", 1, 3, 3, 3, 95.0))
sketch4.addConstraint(Sketcher.Constraint("DistanceY", 0, 3, 4, 3, 95.0))
sketch4.addConstraint(Sketcher.Constraint("DistanceY", 5, 3, 1, 3, 144.0))
sketch4.addConstraint(Sketcher.Constraint("DistanceY", 0, 3, 1, 3, 119.5))
sketch4.addConstraint(Sketcher.Constraint("DistanceX", 2, 3, 3, 3, 162.5))
sketch4.addConstraint(Sketcher.Constraint("DistanceX", 0, 3, -1, 1, 81.25))
sketch4.addConstraint(Sketcher.Constraint("DistanceY", 0, 3, -1, 1, 104.43566))
pocket2 = doc.addObject("PartDesign::Pocket", "Pocket001")
body.addObject(pocket2)
pocket2.Profile = sketch4
pocket2.Length = 5
pocket2.Reversed = True

sketch5 = doc.addObject("Sketcher::SketchObject", "Sketch004")
body.addObject(sketch5)
sketch5.AttachmentSupport = (doc.XZ_Plane, [""])
sketch5.MapMode = "FlatFace"
add_polygon(sketch5, [(-89, -178), (-89, -153), (64, -153), (64, -178)])
sketch5.addConstraint(Sketcher.Constraint("Vertical", 0))
sketch5.addConstraint(Sketcher.Constraint("Horizontal", 1))
sketch5.addConstraint(Sketcher.Constraint("Vertical", 2))
sketch5.addConstraint(Sketcher.Constraint("Horizontal", 3))
sketch5.addConstraint(Sketcher.Constraint("DistanceY", 0, 1, 0, 2, 25.0))
sketch5.addConstraint(Sketcher.Constraint("DistanceX", 1, 1, 1, 2, 152.5))
sketch5.addConstraint(Sketcher.Constraint("DistanceX", 0, 2, -1, 1, 88.75))
sketch5.addConstraint(Sketcher.Constraint("DistanceY", 0, 2, -1, 1, 152.56434))
pad3 = doc.addObject("PartDesign::Pad", "Pad002")
body.addObject(pad3)
pad3.Profile = sketch5
pad3.Length = 5
pad3.Reversed = True
doc.recompute()

fillet = doc.addObject("PartDesign::Fillet", "Fillet")
body.addObject(fillet)
fillet.Base = (pad3, edges_at(pad3, [(-88.75, 2.5, -177.564)]))
fillet.Radius = 20

doc.recompute()
